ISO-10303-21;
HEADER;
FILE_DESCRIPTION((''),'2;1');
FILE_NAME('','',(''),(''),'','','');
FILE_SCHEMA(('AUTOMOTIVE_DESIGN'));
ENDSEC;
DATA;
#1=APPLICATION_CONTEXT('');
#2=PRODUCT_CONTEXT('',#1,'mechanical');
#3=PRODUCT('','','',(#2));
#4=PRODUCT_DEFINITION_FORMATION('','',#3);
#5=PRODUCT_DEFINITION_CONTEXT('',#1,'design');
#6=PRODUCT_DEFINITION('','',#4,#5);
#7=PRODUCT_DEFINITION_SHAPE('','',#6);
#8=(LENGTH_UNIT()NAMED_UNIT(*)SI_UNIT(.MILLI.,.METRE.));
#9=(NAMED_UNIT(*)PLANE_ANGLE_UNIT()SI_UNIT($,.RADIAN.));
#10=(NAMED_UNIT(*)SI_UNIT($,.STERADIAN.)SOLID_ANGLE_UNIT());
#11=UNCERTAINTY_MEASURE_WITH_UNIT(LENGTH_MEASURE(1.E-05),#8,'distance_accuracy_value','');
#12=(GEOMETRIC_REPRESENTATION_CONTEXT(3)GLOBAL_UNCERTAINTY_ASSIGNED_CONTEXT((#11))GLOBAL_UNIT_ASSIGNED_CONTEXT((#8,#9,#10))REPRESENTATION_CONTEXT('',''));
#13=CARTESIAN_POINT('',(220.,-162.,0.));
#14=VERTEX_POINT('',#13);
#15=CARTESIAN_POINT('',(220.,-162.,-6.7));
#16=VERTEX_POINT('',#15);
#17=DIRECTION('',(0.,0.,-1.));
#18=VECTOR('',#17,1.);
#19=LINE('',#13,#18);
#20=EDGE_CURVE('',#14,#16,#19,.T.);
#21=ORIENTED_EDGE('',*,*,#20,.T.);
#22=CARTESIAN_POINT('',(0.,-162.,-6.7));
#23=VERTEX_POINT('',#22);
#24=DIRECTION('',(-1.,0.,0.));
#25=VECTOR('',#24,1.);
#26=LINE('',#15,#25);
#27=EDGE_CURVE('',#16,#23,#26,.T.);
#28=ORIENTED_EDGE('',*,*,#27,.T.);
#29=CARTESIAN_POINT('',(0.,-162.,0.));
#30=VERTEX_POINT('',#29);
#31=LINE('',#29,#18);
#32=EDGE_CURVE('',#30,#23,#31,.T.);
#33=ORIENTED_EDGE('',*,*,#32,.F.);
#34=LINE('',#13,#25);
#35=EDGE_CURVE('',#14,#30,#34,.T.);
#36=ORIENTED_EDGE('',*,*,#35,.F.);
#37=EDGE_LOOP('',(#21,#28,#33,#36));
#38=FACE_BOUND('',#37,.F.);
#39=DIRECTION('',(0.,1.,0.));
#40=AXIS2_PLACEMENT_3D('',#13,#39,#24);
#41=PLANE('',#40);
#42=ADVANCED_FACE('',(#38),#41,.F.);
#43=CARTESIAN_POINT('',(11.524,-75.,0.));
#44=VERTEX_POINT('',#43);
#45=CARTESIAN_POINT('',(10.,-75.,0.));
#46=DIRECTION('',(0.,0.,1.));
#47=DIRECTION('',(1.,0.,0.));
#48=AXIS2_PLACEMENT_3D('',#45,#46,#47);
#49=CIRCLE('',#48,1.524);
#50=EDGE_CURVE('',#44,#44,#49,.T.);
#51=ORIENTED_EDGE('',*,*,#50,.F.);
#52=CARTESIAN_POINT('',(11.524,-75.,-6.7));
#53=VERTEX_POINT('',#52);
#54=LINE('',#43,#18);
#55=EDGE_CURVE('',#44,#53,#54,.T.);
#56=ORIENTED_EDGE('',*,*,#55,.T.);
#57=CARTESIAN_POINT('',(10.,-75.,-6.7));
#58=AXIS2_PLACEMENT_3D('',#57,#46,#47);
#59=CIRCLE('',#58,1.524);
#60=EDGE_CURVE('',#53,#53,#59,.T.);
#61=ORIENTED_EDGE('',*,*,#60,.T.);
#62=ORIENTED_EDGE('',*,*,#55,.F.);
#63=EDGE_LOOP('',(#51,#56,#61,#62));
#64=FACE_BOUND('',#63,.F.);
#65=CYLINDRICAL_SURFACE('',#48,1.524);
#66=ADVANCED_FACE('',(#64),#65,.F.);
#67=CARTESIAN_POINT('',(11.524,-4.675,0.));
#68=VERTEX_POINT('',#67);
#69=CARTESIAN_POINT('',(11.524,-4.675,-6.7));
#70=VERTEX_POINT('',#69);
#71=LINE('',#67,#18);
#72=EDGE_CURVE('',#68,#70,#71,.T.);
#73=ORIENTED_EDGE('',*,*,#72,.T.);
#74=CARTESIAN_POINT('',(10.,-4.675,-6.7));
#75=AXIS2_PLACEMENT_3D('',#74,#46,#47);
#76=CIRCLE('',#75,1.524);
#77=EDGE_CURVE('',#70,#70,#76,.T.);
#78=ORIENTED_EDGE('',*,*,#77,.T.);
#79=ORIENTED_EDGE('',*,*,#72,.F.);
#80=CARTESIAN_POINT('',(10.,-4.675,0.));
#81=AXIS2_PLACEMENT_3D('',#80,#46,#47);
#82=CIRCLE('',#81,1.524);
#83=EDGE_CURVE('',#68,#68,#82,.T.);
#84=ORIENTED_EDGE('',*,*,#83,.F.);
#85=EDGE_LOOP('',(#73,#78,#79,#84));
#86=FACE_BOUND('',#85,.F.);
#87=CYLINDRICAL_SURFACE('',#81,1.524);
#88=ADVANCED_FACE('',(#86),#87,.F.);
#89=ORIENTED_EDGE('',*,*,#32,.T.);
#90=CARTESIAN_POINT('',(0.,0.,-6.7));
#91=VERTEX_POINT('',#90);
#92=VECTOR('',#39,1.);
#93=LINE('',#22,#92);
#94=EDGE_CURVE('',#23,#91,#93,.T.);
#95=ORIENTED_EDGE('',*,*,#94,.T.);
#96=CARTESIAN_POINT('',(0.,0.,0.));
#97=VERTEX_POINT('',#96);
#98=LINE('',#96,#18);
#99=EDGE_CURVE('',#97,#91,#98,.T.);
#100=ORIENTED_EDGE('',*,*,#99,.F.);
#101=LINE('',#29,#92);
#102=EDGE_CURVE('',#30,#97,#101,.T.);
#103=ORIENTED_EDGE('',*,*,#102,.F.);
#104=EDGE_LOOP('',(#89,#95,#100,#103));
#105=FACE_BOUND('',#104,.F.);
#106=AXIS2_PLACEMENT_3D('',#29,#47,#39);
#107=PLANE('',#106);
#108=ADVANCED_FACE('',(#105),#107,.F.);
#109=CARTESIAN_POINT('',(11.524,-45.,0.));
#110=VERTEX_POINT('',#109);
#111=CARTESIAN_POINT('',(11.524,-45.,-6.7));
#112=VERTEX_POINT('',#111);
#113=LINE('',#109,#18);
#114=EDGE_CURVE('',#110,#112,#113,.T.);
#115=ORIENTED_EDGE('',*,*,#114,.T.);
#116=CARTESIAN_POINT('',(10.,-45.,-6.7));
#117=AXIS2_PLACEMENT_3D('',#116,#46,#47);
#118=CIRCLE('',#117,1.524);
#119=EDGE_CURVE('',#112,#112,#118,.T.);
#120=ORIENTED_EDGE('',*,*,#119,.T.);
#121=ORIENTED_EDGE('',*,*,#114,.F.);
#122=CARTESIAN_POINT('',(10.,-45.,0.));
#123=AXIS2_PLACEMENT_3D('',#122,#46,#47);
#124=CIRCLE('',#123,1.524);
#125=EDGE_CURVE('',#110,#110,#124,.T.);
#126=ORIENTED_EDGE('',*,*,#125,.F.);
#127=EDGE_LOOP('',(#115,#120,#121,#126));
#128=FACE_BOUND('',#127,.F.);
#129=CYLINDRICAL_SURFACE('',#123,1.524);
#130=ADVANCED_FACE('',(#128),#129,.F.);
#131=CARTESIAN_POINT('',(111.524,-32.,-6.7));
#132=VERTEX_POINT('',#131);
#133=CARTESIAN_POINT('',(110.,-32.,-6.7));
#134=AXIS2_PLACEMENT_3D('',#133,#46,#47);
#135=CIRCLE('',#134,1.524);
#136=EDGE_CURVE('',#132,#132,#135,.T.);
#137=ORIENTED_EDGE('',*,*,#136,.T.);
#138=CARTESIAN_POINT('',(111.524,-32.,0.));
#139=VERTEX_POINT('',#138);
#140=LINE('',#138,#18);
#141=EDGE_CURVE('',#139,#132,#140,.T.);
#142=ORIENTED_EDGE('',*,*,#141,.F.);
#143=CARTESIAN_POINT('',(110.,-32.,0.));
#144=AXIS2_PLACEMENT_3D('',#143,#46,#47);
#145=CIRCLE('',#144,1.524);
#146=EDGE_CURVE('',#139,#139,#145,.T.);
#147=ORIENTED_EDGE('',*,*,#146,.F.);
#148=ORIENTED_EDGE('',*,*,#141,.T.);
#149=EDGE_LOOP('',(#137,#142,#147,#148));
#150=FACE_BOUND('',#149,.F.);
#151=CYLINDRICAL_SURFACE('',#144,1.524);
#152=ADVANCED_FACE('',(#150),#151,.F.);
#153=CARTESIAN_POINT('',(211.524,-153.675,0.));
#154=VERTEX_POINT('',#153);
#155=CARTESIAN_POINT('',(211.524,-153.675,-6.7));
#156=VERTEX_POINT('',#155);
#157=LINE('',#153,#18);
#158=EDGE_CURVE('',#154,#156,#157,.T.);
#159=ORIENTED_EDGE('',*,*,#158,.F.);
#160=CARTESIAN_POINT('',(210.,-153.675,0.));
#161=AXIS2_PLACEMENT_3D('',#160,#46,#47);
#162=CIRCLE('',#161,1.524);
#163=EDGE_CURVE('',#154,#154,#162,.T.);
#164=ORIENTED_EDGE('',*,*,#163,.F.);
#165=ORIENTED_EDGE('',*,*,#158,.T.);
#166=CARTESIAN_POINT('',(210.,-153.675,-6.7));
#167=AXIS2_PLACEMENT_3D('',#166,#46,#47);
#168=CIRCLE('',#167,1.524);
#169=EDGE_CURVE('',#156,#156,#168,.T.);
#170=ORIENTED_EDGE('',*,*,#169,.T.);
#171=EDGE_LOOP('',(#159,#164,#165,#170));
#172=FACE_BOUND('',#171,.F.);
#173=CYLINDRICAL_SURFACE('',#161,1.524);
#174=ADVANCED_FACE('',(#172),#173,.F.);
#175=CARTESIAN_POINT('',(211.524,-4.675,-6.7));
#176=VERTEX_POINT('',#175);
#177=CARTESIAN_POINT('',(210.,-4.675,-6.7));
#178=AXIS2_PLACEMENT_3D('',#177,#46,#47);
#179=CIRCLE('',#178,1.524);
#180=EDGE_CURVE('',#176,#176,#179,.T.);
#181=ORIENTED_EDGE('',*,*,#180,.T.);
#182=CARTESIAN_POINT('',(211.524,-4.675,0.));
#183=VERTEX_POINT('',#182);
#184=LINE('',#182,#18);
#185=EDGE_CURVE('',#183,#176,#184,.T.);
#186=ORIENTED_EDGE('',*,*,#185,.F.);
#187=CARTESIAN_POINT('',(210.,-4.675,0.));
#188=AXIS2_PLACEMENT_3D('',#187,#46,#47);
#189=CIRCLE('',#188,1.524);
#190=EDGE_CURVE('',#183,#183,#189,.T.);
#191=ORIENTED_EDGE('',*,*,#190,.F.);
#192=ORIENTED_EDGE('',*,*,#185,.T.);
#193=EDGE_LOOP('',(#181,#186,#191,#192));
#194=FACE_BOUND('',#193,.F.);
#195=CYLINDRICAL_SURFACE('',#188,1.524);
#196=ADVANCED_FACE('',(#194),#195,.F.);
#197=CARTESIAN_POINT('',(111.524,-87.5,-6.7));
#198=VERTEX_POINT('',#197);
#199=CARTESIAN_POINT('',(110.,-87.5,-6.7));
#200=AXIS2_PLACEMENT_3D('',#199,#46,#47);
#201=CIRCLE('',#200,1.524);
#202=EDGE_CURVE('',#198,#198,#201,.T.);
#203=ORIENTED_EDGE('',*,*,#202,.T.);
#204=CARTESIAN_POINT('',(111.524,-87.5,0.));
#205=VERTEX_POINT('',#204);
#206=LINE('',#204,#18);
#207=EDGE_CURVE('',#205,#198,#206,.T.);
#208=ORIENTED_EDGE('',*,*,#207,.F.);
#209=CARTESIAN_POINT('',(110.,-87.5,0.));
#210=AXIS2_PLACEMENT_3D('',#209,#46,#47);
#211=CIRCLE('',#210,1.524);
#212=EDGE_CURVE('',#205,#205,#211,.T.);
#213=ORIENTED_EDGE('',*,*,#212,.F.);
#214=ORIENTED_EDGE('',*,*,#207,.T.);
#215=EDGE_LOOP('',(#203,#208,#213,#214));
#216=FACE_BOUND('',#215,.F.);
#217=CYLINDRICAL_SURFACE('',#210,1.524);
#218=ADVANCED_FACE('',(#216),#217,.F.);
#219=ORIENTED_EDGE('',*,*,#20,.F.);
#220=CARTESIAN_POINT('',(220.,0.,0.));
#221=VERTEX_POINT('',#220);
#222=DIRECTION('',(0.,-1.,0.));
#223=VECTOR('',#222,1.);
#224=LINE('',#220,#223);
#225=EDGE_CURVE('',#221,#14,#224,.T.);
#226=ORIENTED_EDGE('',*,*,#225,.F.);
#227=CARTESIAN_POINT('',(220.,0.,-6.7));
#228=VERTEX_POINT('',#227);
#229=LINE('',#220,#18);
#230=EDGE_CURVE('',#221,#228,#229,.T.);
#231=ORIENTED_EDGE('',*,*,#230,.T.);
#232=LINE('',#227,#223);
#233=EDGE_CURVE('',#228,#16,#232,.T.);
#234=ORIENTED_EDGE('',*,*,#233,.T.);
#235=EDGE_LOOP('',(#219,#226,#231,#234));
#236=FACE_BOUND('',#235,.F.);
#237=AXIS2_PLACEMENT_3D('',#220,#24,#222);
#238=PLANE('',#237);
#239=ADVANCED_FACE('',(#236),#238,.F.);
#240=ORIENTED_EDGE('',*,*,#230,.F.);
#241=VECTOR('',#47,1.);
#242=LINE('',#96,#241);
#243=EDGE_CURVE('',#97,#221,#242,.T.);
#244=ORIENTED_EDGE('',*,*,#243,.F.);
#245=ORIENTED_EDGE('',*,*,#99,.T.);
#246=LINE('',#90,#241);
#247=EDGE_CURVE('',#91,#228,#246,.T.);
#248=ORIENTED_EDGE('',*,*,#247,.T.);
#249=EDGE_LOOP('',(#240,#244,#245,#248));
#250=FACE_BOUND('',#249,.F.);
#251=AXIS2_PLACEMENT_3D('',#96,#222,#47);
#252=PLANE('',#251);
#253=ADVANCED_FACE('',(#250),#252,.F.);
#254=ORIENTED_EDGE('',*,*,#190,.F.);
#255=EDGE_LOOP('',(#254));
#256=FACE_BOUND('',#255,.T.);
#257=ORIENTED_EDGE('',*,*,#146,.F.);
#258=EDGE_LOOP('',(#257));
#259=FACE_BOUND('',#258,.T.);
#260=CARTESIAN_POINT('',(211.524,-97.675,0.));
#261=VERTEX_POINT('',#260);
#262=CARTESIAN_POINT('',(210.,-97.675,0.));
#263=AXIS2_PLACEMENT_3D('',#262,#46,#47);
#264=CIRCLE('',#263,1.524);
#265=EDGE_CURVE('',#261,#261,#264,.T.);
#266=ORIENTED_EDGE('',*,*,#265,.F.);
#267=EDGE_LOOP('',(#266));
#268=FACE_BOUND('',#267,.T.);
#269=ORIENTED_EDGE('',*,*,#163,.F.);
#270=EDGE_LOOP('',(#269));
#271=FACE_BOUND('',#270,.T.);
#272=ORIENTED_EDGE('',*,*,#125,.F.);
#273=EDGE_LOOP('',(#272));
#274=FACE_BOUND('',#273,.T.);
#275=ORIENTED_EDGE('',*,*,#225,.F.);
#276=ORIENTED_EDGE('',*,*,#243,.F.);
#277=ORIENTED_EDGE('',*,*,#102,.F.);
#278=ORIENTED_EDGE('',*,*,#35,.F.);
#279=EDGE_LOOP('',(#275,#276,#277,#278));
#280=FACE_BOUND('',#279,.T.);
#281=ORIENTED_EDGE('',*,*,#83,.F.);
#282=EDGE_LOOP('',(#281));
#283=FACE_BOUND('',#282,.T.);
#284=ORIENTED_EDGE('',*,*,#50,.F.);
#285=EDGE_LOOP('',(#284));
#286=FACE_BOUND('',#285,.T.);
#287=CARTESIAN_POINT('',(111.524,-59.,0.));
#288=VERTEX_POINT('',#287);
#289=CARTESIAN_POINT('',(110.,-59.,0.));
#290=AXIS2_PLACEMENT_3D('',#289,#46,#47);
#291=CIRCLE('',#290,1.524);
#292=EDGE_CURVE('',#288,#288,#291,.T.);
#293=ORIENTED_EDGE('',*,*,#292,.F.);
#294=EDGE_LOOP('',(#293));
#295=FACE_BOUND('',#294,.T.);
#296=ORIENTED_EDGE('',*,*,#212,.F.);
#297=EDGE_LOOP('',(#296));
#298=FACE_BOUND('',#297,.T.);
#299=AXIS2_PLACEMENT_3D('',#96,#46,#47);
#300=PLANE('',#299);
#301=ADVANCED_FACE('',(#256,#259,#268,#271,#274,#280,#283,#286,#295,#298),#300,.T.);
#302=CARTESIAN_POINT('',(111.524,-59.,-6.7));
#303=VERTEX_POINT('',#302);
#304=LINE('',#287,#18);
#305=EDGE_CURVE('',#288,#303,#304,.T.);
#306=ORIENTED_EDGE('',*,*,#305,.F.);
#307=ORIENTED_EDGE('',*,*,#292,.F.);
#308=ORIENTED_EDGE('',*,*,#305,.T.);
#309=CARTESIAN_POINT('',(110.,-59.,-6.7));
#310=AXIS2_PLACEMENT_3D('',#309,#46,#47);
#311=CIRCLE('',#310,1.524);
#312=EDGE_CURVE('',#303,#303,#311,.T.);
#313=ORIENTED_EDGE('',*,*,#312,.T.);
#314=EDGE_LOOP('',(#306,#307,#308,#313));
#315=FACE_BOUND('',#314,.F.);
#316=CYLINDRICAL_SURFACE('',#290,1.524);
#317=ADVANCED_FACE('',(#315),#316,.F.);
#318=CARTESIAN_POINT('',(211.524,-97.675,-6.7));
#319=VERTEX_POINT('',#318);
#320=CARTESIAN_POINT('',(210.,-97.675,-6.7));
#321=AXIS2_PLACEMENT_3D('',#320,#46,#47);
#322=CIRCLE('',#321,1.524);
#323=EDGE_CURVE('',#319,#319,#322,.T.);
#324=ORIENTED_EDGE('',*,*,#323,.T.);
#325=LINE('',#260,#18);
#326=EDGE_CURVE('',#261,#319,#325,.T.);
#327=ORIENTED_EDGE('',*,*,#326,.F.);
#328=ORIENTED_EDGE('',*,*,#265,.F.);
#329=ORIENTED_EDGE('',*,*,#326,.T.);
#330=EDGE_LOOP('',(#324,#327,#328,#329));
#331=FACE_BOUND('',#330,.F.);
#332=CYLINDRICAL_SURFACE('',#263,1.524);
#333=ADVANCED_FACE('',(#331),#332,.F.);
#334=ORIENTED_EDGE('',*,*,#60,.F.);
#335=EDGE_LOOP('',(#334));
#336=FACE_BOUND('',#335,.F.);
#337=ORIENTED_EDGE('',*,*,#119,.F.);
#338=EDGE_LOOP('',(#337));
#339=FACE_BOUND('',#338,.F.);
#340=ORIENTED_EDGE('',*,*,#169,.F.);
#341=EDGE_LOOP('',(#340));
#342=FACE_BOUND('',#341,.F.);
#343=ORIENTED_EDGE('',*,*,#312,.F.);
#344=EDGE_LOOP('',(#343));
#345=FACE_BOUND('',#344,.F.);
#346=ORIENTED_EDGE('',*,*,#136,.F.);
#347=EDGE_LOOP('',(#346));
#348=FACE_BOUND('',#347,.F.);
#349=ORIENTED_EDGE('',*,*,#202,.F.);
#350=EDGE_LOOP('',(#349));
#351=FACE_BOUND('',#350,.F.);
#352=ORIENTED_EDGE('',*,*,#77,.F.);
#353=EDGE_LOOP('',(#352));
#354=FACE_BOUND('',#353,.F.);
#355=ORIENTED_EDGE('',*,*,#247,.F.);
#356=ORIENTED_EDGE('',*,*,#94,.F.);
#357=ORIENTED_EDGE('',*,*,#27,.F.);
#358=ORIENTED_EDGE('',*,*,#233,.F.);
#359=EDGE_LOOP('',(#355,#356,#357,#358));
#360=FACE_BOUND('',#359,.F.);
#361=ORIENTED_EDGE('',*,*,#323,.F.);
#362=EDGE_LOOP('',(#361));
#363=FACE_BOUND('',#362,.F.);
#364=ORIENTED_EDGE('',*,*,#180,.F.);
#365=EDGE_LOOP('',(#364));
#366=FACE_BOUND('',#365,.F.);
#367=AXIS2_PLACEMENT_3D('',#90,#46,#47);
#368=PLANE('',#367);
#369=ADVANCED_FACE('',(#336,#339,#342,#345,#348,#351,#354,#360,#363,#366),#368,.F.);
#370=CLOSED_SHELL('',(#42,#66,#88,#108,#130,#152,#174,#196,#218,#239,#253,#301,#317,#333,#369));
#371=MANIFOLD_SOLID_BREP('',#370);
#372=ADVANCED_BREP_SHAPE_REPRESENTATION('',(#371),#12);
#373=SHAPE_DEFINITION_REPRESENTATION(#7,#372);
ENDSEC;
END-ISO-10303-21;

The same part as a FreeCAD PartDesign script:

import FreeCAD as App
import Part
import Sketcher
from FreeCAD import Vector
Q = App.Units.Quantity

doc = App.newDocument("Part")
params = doc.addObject("Spreadsheet::Sheet", "Params")
for row, (alias, value) in enumerate([
    ("sketch1_width", "220 mm"),
    ("sketch1_height", "162 mm"),
    ("pad1_length", "6.7 mm"),
], start=1):
    params.set(f"A{row}", alias)
    params.set(f"B{row}", "=" + value)
    params.setAlias(f"B{row}", alias)

body = doc.addObject("PartDesign::Body", "Body")

sketch1 = body.newObject("Sketcher::SketchObject", "Sketch")
sketch1.AttachmentSupport = (doc.getObject("XY_Plane"), [""])
sketch1.MapMode = "FlatFace"
sketch1.addGeometry(Part.LineSegment(Vector(220, 0, 0), Vector(0, 0, 0)), False)
sketch1.addGeometry(Part.LineSegment(Vector(0, 0, 0), Vector(0, -162, 0)), False)
sketch1.addGeometry(Part.LineSegment(Vector(0, -162, 0), Vector(220, -162, 0)), False)
sketch1.addGeometry(Part.LineSegment(Vector(220, -162, 0), Vector(220, 0, 0)), False)
sketch1.addConstraint(Sketcher.Constraint("Coincident", 0, 2, 1, 1))
sketch1.addConstraint(Sketcher.Constraint("Coincident", 1, 2, 2, 1))
sketch1.addConstraint(Sketcher.Constraint("Coincident", 2, 2, 3, 1))
sketch1.addConstraint(Sketcher.Constraint("Coincident", 3, 2, 0, 1))
sketch1.addConstraint(Sketcher.Constraint("Horizontal", 0))
sketch1.addConstraint(Sketcher.Constraint("Vertical", 1))
sketch1.addConstraint(Sketcher.Constraint("Horizontal", 2))
sketch1.addConstraint(Sketcher.Constraint("Vertical", 3))
sketch1.addConstraint(Sketcher.Constraint("Coincident", 0, 2, -1, 1))
sketch1.addConstraint(Sketcher.Constraint("DistanceX", 0, 2, 0, 1, Q("220 mm")))
sketch1.addConstraint(Sketcher.Constraint("DistanceY", 1, 2, 1, 1, Q("162 mm")))
sketch1.setExpression("Constraints[9]", "Params.sketch1_width")
sketch1.setExpression("Constraints[10]", "Params.sketch1_height")
pad1 = body.newObject("PartDesign::Pad", "Pad")
pad1.Profile = sketch1
pad1.setExpression("Length", "Params.pad1_length")
pad1.Reversed = True

sketch2 = body.newObject("Sketcher::SketchObject", "Sketch001")
sketch2.AttachmentSupport = (doc.getObject("XY_Plane"), [""])
sketch2.MapMode = "FlatFace"
sketch2.addGeometry(Part.Circle(Vector(10, -4.7, 0), Vector(0, 0, 1), 1.5), False)
sketch2.addGeometry(Part.Circle(Vector(110, -32, 0), Vector(0, 0, 1), 1.5), False)
sketch2.addGeometry(Part.Circle(Vector(210, -4.7, 0), Vector(0, 0, 1), 1.5), False)
sketch2.addGeometry(Part.Circle(Vector(210, -97.7, 0), Vector(0, 0, 1), 1.5), False)
sketch2.addGeometry(Part.Circle(Vector(110, -87.5, 0), Vector(0, 0, 1), 1.5), False)
sketch2.addGeometry(Part.Circle(Vector(10, -45, 0), Vector(0, 0, 1), 1.5), False)
sketch2.addGeometry(Part.Circle(Vector(110, -59, 0), Vector(0, 0, 1), 1.5), False)
sketch2.addGeometry(Part.Circle(Vector(210, -153.7, 0), Vector(0, 0, 1), 1.5), False)
sketch2.addGeometry(Part.Circle(Vector(10, -75, 0), Vector(0, 0, 1), 1.5), False)
sketch2.addConstraint(Sketcher.Constraint("Equal", 0, 1))
sketch2.addConstraint(Sketcher.Constraint("Equal", 1, 2))
sketch2.addConstraint(Sketcher.Constraint("Equal", 2, 3))
sketch2.addConstraint(Sketcher.Constraint("Equal", 3, 4))
sketch2.addConstraint(Sketcher.Constraint("Equal", 4, 5))
sketch2.addConstraint(Sketcher.Constraint("Equal", 5, 6))
sketch2.addConstraint(Sketcher.Constraint("Equal", 6, 7))
sketch2.addConstraint(Sketcher.Constraint("Equal", 7, 8))
sketch2.addConstraint(Sketcher.Constraint("Horizontal", 0, 3, 2, 3))
sketch2.addConstraint(Sketcher.Constraint("Vertical", 2, 3, 3, 3))
sketch2.addConstraint(Sketcher.Constraint("Vertical", 1, 3, 4, 3))
sketch2.addConstraint(Sketcher.Constraint("Vertical", 0, 3, 5, 3))
sketch2.addConstraint(Sketcher.Constraint("Vertical", 4, 3, 6, 3))
sketch2.addConstraint(Sketcher.Constraint("Vertical", 3, 3, 7, 3))
sketch2.addConstraint(Sketcher.Constraint("Vertical", 5, 3, 8, 3))
sketch2.addConstraint(Sketcher.Constraint("Diameter", 0, Q("3.048 mm")))
sketch2.addConstraint(Sketcher.Constraint("DistanceX", -1, 1, 0, 3, Q("10 mm")))
sketch2.addConstraint(Sketcher.Constraint("DistanceX", -1, 1, 1, 3, Q("110 mm")))
sketch2.addConstraint(Sketcher.Constraint("DistanceY", 1, 3, -1, 1, Q("32 mm")))
sketch2.addConstraint(Sketcher.Constraint("DistanceY", 3, 3, 2, 3, Q("93 mm")))
sketch2.addConstraint(Sketcher.Constraint("DistanceY", 6, 3, 1, 3, Q("27 mm")))
sketch2.addConstraint(Sketcher.Constraint("DistanceY", 7, 3, 3, 3, Q("56 mm")))
sketch2.addConstraint(Sketcher.Constraint("DistanceY", 8, 3, 5, 3, Q("30 mm")))
sketch2.addConstraint(Sketcher.Constraint("DistanceY", 4, 3, 6, 3, Q("28.5 mm")))
sketch2.addConstraint(Sketcher.Constraint("DistanceY", 0, 3, -1, 1, Q("4.675 mm")))
sketch2.addConstraint(Sketcher.Constraint("DistanceX", -1, 1, 2, 3, Q("210 mm")))
sketch2.addConstraint(Sketcher.Constraint("DistanceY", 5, 3, -1, 1, Q("45 mm")))
pocket1 = body.newObject("PartDesign::Pocket", "Pocket")
pocket1.Profile = sketch2
pocket1.Type = "ThroughAll"

doc.recompute()
